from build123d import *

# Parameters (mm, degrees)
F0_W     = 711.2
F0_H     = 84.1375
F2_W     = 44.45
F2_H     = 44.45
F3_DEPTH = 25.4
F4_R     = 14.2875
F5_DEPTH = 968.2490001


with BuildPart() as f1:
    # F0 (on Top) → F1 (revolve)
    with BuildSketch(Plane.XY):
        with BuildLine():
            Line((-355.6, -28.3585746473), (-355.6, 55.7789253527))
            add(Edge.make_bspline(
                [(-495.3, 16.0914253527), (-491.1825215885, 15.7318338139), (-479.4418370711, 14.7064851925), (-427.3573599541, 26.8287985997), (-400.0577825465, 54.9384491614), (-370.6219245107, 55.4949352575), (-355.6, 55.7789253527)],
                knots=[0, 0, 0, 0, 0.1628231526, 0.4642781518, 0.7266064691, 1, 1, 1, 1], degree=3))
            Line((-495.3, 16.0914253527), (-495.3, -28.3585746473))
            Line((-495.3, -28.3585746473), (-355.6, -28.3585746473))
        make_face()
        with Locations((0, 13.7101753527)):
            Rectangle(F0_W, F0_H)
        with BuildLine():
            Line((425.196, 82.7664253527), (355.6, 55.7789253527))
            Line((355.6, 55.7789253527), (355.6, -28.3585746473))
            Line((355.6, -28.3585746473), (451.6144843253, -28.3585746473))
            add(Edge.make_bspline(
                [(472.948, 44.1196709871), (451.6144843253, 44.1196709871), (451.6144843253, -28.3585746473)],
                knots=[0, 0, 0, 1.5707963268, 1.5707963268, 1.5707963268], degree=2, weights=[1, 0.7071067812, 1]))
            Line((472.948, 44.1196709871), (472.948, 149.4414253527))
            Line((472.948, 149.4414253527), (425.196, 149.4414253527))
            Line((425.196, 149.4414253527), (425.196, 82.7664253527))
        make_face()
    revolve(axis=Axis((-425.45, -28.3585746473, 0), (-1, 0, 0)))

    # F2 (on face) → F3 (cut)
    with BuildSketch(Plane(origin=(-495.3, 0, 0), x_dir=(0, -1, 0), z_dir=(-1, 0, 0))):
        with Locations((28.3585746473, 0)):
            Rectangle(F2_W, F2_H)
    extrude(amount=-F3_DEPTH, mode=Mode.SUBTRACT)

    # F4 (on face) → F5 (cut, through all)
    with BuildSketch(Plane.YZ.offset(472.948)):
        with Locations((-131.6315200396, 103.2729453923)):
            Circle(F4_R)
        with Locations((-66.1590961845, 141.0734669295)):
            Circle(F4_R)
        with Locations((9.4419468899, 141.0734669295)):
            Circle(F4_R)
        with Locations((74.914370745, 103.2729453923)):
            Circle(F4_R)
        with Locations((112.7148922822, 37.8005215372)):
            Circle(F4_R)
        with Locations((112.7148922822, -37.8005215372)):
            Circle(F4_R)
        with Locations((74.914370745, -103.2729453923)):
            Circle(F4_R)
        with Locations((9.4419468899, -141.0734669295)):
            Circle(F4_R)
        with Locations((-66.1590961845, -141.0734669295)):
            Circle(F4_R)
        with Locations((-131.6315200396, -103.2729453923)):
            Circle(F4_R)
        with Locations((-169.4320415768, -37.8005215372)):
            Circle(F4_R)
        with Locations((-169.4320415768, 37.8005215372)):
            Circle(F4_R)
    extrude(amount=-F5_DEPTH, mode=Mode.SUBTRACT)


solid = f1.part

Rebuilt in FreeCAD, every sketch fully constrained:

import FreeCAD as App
import Part
import Sketcher
from FreeCAD import Vector
Q = App.Units.Quantity

doc = App.newDocument("Part")
body = doc.addObject("PartDesign::Body", "Body")

sketch1 = body.newObject("Sketcher::SketchObject", "Sketch")
sketch1.AttachmentSupport = (doc.getObject("XY_Plane"), [""])
sketch1.MapMode = "FlatFace"
sketch1.addGeometry([
    Part.BSplineCurve([Vector(-495.3, 16.091425, 0), Vector(-491.182522, 15.731834, 0), Vector(-479.441837, 14.706485, 0), Vector(-427.35736, 26.828799, 0), Vector(-400.057783, 54.938449, 0), Vector(-370.621925, 55.494935, 0), Vector(-355.6, 55.778925, 0)], [4, 1, 1, 1, 4], [0, 0.162823153, 0.464278152, 0.726606469, 1], False, 3, [1, 1, 1, 1, 1, 1, 1], False),
    Part.LineSegment(Vector(-495.3, 16.091425, 0), Vector(-495.3, -28.358575, 0)),
    Part.LineSegment(Vector(-495.3, -28.358575, 0), Vector(451.614484, -28.358575, 0)),
    Part.BSplineCurve([Vector(472.948, 44.119671, 0), Vector(451.614484, 44.119671, 0), Vector(451.614484, -28.358575, 0)], [3, 3], [0, 1.570796327], False, 2, [1, 0.707106781, 1], False),
    Part.LineSegment(Vector(472.948, 44.119671, 0), Vector(472.948, 149.441425, 0)),
    Part.LineSegment(Vector(472.948, 149.441425, 0), Vector(425.196, 149.441425, 0)),
    Part.LineSegment(Vector(425.196, 149.441425, 0), Vector(425.196, 82.766425, 0)),
    Part.LineSegment(Vector(425.196, 82.766425, 0), Vector(355.6, 55.778925, 0)),
    Part.LineSegment(Vector(355.6, 55.778925, 0), Vector(-355.6, 55.778925, 0)),
], False)
sketch1.addGeometry(Part.LineSegment(Vector(472.948, -28.358575, 0), Vector(-495.3, -28.358575, 0)), True)
sketch1.addConstraint([
    Sketcher.Constraint("Block", 0),
    Sketcher.Constraint("Block", 3),
    Sketcher.Constraint("Coincident", 0, 1, 1, 1),
    Sketcher.Constraint("Coincident", 1, 2, 2, 1),
    Sketcher.Constraint("Coincident", 2, 2, 3, 2),
    Sketcher.Constraint("Coincident", 3, 1, 4, 1),
    Sketcher.Constraint("Coincident", 4, 2, 5, 1),
    Sketcher.Constraint("Coincident", 5, 2, 6, 1),
    Sketcher.Constraint("Coincident", 6, 2, 7, 1),
    Sketcher.Constraint("Coincident", 7, 2, 8, 1),
    Sketcher.Constraint("Coincident", 8, 2, 0, 2),
    Sketcher.Constraint("Vertical", 1),
    Sketcher.Constraint("Horizontal", 2),
    Sketcher.Constraint("Vertical", 4),
    Sketcher.Constraint("Horizontal", 5),
    Sketcher.Constraint("Vertical", 6),
    Sketcher.Constraint("Horizontal", 8),
    Sketcher.Constraint("Horizontal", 9),
    Sketcher.Constraint("Coincident", 9, 2, 1, 2),
    Sketcher.Constraint("Vertical", 4, 2, 9, 1),
    Sketcher.Constraint("DistanceX", 8, 2, 8, 1, Q("28 in")),
    Sketcher.Constraint("DistanceY", 2, 2, 4, 2, Q("7 in")),
    Sketcher.Constraint("DistanceX", 5, 2, 5, 1, Q("1.88 in")),
    Sketcher.Constraint("DistanceY", 6, 2, 6, 1, Q("2.625 in")),
])
revolution = body.newObject("PartDesign::Revolution", "Revolution")
revolution.Profile = sketch1
revolution.ReferenceAxis = (sketch1, ["Axis0"])
revolution.Angle = 360

sketch2 = body.newObject("Sketcher::SketchObject", "Sketch001")
sketch2.AttachmentSupport = (doc.getObject("YZ_Plane"), [""])
sketch2.MapMode = "FlatFace"
sketch2.AttachmentOffset = App.Placement(Vector(0, 0, -19.5 * 25.4), App.Rotation())
sketch2.addGeometry([
    Part.LineSegment(Vector(-6, 22, 0), Vector(-6, -22, 0)),
    Part.LineSegment(Vector(-6, -22, 0), Vector(-51, -22, 0)),
    Part.LineSegment(Vector(-51, -22, 0), Vector(-51, 22, 0)),
    Part.LineSegment(Vector(-51, 22, 0), Vector(-6, 22, 0)),
], False)
sketch2.addConstraint([
    Sketcher.Constraint("Coincident", 0, 2, 1, 1),
    Sketcher.Constraint("Coincident", 1, 2, 2, 1),
    Sketcher.Constraint("Coincident", 2, 2, 3, 1),
    Sketcher.Constraint("Coincident", 3, 2, 0, 1),
    Sketcher.Constraint("Vertical", 0),
    Sketcher.Constraint("Horizontal", 1),
    Sketcher.Constraint("Vertical", 2),
    Sketcher.Constraint("Horizontal", 3),
    Sketcher.Constraint("Equal", 3, 0),
    Sketcher.Constraint("DistanceX", 1, 2, 1, 1, Q("1.75 in")),
    Sketcher.Constraint("DistanceY", 0, 2, -1, 1, Q("0.875 in")),
    Sketcher.Constraint("DistanceX", 0, 2, -1, 1, 6.133575),
])
pocket1 = body.newObject("PartDesign::Pocket", "Pocket")
pocket1.Profile = sketch2
pocket1.Length = Q("1 in")
pocket1.Reversed = True

sketch3 = body.newObject("Sketcher::SketchObject", "Sketch002")
sketch3.AttachmentSupport = (doc.getObject("YZ_Plane"), [""])
sketch3.MapMode = "FlatFace"
sketch3.AttachmentOffset = App.Placement(Vector(0, 0, 18.62 * 25.4), App.Rotation())
sketch3.addGeometry([
    Part.Circle(Vector(-132, 103, 0), Vector(0, 0, 1), 14),
    Part.Circle(Vector(-66, 141, 0), Vector(0, 0, 1), 14),
    Part.Circle(Vector(9, 141, 0), Vector(0, 0, 1), 14),
    Part.Circle(Vector(75, 103, 0), Vector(0, 0, 1), 14),
    Part.Circle(Vector(113, 38, 0), Vector(0, 0, 1), 14),
    Part.Circle(Vector(113, -38, 0), Vector(0, 0, 1), 14),
    Part.Circle(Vector(75, -103, 0), Vector(0, 0, 1), 14),
    Part.Circle(Vector(9, -141, 0), Vector(0, 0, 1), 14),
    Part.Circle(Vector(-66, -141, 0), Vector(0, 0, 1), 14),
    Part.Circle(Vector(-132, -103, 0), Vector(0, 0, 1), 14),
    Part.Circle(Vector(-169, -38, 0), Vector(0, 0, 1), 14),
    Part.Circle(Vector(-169, 38, 0), Vector(0, 0, 1), 14),
], False)
sketch3.addConstraint([
    Sketcher.Constraint("Equal", 0, 1),
    Sketcher.Constraint("Equal", 1, 2),
    Sketcher.Constraint("Equal", 2, 3),
    Sketcher.Constraint("Equal", 3, 4),
    Sketcher.Constraint("Equal", 4, 5),
    Sketcher.Constraint("Equal", 5, 6),
    Sketcher.Constraint("Equal", 6, 7),
    Sketcher.Constraint("Equal", 7, 8),
    Sketcher.Constraint("Equal", 8, 9),
    Sketcher.Constraint("Equal", 9, 10),
    Sketcher.Constraint("Equal", 10, 11),
    Sketcher.Constraint("Symmetric", 4, 3, 5, 3, -1),
    Sketcher.Constraint("Symmetric", 3, 3, 6, 3, -1),
    Sketcher.Constraint("Symmetric", 2, 3, 7, 3, -1),
    Sketcher.Constraint("Symmetric", 1, 3, 8, 3, -1),
    Sketcher.Constraint("Symmetric", 0, 3, 9, 3, -1),
    Sketcher.Constraint("Symmetric", 10, 3, 11, 3, -1),
    Sketcher.Constraint("Horizontal", 1, 3, 2, 3),
    Sketcher.Constraint("Horizontal", 0, 3, 3, 3),
    Sketcher.Constraint("Horizontal", 5, 3, 10, 3),
    Sketcher.Constraint("Diameter", 0, Q("1.125 in")),
    Sketcher.Constraint("DistanceX", 0, 3, -1, 1, 131.63152),
    Sketcher.Constraint("DistanceX", -1, 1, 3, 3, 74.914371),
    Sketcher.Constraint("DistanceY", -1, 1, 4, 3, 37.800522),
    Sketcher.Constraint("DistanceX", 10, 3, -1, 1, 169.432042),
    Sketcher.Constraint("DistanceY", 0, 3, 1, 3, 37.800522),
    Sketcher.Constraint("DistanceX", 3, 3, 4, 3, 37.800522),
    Sketcher.Constraint("DistanceX", 1, 3, 4, 3, 178.873988),
    Sketcher.Constraint("DistanceY", 5, 3, 2, 3, 178.873988),
    Sketcher.Constraint("DistanceX", 10, 3, 7, 3, 178.873988),
])
pocket2 = body.newObject("PartDesign::Pocket", "Pocket001")
pocket2.Profile = sketch3
pocket2.Type = "ThroughAll"

doc.recompute()
